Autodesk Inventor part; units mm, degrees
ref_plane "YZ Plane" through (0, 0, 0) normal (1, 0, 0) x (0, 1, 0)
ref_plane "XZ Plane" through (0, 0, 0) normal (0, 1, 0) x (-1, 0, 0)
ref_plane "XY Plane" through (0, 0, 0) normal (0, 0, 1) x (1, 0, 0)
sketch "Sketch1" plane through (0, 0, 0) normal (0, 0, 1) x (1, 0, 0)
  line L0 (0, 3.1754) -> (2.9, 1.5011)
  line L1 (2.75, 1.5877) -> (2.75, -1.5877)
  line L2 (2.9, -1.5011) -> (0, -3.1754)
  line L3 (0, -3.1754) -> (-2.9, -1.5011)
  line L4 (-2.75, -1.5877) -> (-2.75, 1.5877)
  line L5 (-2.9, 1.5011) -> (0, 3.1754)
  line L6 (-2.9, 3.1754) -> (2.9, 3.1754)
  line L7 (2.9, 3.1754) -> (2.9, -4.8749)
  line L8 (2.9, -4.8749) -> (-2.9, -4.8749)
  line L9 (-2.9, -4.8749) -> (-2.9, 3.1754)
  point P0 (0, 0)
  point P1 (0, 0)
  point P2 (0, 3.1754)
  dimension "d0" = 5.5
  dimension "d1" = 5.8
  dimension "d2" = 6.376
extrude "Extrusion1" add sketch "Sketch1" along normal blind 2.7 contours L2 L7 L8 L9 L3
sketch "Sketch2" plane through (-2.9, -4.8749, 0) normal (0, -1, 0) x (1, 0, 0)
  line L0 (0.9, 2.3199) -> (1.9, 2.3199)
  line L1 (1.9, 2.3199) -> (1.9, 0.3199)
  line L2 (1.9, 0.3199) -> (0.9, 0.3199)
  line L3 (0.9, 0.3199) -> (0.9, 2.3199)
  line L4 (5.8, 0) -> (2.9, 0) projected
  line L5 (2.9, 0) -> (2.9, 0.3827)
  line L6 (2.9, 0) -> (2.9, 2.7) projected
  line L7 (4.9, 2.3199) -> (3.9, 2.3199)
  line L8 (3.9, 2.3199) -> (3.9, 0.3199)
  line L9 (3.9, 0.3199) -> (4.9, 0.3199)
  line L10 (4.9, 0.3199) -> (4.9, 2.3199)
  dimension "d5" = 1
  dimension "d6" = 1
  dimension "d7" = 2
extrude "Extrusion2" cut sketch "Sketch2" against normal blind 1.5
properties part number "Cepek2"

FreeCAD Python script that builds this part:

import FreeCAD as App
import Part
import Sketcher

V = App.Vector
Q = App.Units.Quantity

doc = App.newDocument("Part")
body = doc.addObject("PartDesign::Body", "Body")

sketch1 = doc.addObject("Sketcher::SketchObject", "Sketch")
body.addObject(sketch1)
sketch1.AttachmentSupport = (doc.XY_Plane, [""])
sketch1.MapMode = "FlatFace"
sketch1.addGeometry([
    Part.LineSegment(V(2.9, -1.5011, 0), V(0, -3.1754, 0)),
    Part.LineSegment(V(0, -3.1754, 0), V(-2.9, -1.5011, 0)),
    Part.LineSegment(V(-2.9, -1.5011, 0), V(-2.9, -4.8749, 0)),
    Part.LineSegment(V(-2.9, -4.8749, 0), V(2.9, -4.8749, 0)),
    Part.LineSegment(V(2.9, -4.8749, 0), V(2.9, -1.5011, 0)),
], False)
sketch1.addConstraint([
    Sketcher.Constraint("Coincident", 0, 2, 1, 1),
    Sketcher.Constraint("Coincident", 1, 2, 2, 1),
    Sketcher.Constraint("Coincident", 2, 2, 3, 1),
    Sketcher.Constraint("Coincident", 3, 2, 4, 1),
    Sketcher.Constraint("Coincident", 4, 2, 0, 1),
    Sketcher.Constraint("Vertical", 2),
    Sketcher.Constraint("Horizontal", 3),
    Sketcher.Constraint("Vertical", 4),
    Sketcher.Constraint("Symmetric", 1, 2, 4, 2, -2),
    Sketcher.Constraint("PointOnObject", 0, 2, -2),
    Sketcher.Constraint("DistanceX", 3, 1, 3, 2, 5.8),
    Sketcher.Constraint("Angle", 0, Q("-150.0002 deg")),
    Sketcher.Constraint("DistanceY", 2, 2, 2, 1, 3.3738),
    Sketcher.Constraint("DistanceY", 1, 2, -1, 1, 1.501),
])
pad1 = doc.addObject("PartDesign::Pad", "Pad")
body.addObject(pad1)
pad1.Profile = sketch1
pad1.Length = 2.7

sketch2 = doc.addObject("Sketcher::SketchObject", "Sketch001")
body.addObject(sketch2)
sketch2.AttachmentSupport = (doc.XZ_Plane, [""])
sketch2.MapMode = "FlatFace"
sketch2.AttachmentOffset = App.Placement(V(0, 0, 4.8749), App.Rotation())
sketch2.addGeometry([
    Part.LineSegment(V(-1, 2.3199, 0), V(-2, 2.3199, 0)),
    Part.LineSegment(V(-2, 2.3199, 0), V(-2, 0.3199, 0)),
    Part.LineSegment(V(-2, 0.3199, 0), V(-1, 0.3199, 0)),
    Part.LineSegment(V(-1, 0.3199, 0), V(-1, 2.3199, 0)),
    Part.LineSegment(V(2, 0.3199, 0), V(2, 2.3199, 0)),
    Part.LineSegment(V(2, 2.3199, 0), V(1, 2.3199, 0)),
    Part.LineSegment(V(1, 2.3199, 0), V(1, 0.3199, 0)),
    Part.LineSegment(V(1, 0.3199, 0), V(2, 0.3199, 0)),
], False)
sketch2.addConstraint([
    Sketcher.Constraint("Coincident", 0, 2, 1, 1),
    Sketcher.Constraint("Coincident", 1, 2, 2, 1),
    Sketcher.Constraint("Coincident", 2, 2, 3, 1),
    Sketcher.Constraint("Coincident", 3, 2, 0, 1),
    Sketcher.Constraint("Coincident", 4, 2, 5, 1),
    Sketcher.Constraint("Coincident", 5, 2, 6, 1),
    Sketcher.Constraint("Coincident", 6, 2, 7, 1),
    Sketcher.Constraint("Coincident", 7, 2, 4, 1),
    Sketcher.Constraint("Horizontal", 0),
    Sketcher.Constraint("Vertical", 1),
    Sketcher.Constraint("Horizontal", 2),
    Sketcher.Constraint("Vertical", 3),
    Sketcher.Constraint("Vertical", 4),
    Sketcher.Constraint("Horizontal", 5),
    Sketcher.Constraint("Vertical", 6),
    Sketcher.Constraint("Horizontal", 7),
    Sketcher.Constraint("Symmetric", 0, 2, 4, 2, -2),
    Sketcher.Constraint("Symmetric", 2, 2, 6, 2, -2),
    Sketcher.Constraint("DistanceX", 0, 2, 0, 1, 1.0),
    Sketcher.Constraint("DistanceY", 1, 2, 1, 1, 2.0),
    Sketcher.Constraint("DistanceX", 0, 2, -1, 1, 2.0),
    Sketcher.Constraint("DistanceY", -1, 1, 0, 2, 2.32),
])
pocket1 = doc.addObject("PartDesign::Pocket", "Pocket")
body.addObject(pocket1)
pocket1.Profile = sketch2
pocket1.Length = 1.5

doc.recompute()
